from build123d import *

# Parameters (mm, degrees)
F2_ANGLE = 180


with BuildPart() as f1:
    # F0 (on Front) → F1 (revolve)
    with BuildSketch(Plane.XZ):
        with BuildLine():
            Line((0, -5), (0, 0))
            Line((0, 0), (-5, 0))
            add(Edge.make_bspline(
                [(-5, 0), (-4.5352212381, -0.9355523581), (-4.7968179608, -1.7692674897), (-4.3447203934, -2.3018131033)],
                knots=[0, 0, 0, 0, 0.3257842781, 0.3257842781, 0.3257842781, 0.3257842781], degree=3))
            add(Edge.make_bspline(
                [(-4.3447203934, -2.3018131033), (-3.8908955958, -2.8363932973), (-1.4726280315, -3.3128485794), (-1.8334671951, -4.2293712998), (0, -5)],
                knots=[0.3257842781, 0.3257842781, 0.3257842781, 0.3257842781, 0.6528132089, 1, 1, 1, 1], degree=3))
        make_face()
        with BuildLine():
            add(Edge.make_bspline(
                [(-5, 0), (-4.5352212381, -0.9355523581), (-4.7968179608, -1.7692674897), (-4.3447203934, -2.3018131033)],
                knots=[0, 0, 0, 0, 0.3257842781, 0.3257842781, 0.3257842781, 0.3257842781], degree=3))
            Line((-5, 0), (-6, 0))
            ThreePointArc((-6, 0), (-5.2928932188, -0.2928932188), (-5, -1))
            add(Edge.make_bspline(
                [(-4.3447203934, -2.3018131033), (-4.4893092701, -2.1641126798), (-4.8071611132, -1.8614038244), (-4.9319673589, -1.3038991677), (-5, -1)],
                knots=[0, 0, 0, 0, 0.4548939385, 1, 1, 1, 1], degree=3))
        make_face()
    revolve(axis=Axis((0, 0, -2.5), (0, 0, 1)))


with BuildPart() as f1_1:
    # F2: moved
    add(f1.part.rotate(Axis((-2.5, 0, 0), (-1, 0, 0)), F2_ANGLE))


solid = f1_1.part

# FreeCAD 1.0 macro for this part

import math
import FreeCAD as App
import Part
import Sketcher

V = App.Vector

doc = App.newDocument("Part")
params = doc.addObject("Spreadsheet::Sheet", "Params")
for row, (alias, value) in enumerate([
    ("sketch1_radius", "1 mm"),
    ("revolution_angle", "360 deg"),
], start=1):
    params.set(f"A{row}", alias)
    params.set(f"B{row}", "=" + value)
    params.setAlias(f"B{row}", alias)

body = doc.addObject("PartDesign::Body", "Body")

sketch1 = body.newObject("Sketcher::SketchObject", "Sketch")
sketch1.AttachmentSupport = (doc.getObject("XZ_Plane"), [""])
sketch1.MapMode = "FlatFace"
sketch1.addGeometry(Part.LineSegment(V(0, -5, 0), V(0, 0, 0)), False)
sketch1.addGeometry(Part.LineSegment(V(0, 0, 0), V(-6, 0, 0)), False)
sketch1.addGeometry(Part.ArcOfCircle(Part.Circle(V(-6, -1, 0), V(0, 0, 1), 1), math.radians(0), math.radians(90)), False)
sketch1.addGeometry(Part.BSplineCurve([V(-4.34472, -2.301813, 0), V(-4.489309, -2.164113, 0), V(-4.807161, -1.861404, 0), V(-4.931967, -1.303899, 0), V(-5, -1, 0)], [4, 1, 4], [0, 0.454893938, 1], False, 3, [1, 1, 1, 1, 1], False), False)
sketch1.addGeometry(Part.BSplineCurve([V(-4.34472, -2.301813, 0), V(-3.890896, -2.836393, 0), V(-1.472628, -3.312849, 0), V(-1.833467, -4.229371, 0), V(0, -5, 0)], [4, 1, 4], [0.325784278, 0.652813209, 1], False, 3, [1, 1, 1, 1, 1], False), False)
sketch1.addConstraint(Sketcher.Constraint("Block", 3))
sketch1.addConstraint(Sketcher.Constraint("Block", 4))
sketch1.addConstraint(Sketcher.Constraint("Coincident", 0, 2, 1, 1))
sketch1.addConstraint(Sketcher.Constraint("Tangent", 1, 2, 2, 2))
sketch1.addConstraint(Sketcher.Constraint("Coincident", 2, 1, 3, 2))
sketch1.addConstraint(Sketcher.Constraint("Coincident", 4, 2, 0, 1))
sketch1.addConstraint(Sketcher.Constraint("Vertical", 0))
sketch1.addConstraint(Sketcher.Constraint("Horizontal", 1))
sketch1.addConstraint(Sketcher.Constraint("PointOnObject", 1, 2, -1))
sketch1.addConstraint(Sketcher.Constraint("Radius", 2, 1.0))
sketch1.setExpression("Constraints[9]", "Params.sketch1_radius")
revolution = body.newObject("PartDesign::Revolution", "Revolution")
revolution.Profile = sketch1
revolution.ReferenceAxis = (sketch1, ["V_Axis"])
revolution.setExpression("Angle", "Params.revolution_angle")
body2 = doc.addObject("PartDesign::Body", "Body001")
doc.recompute()

body.Placement = App.Placement(V(0, 0, 0), App.Rotation(V(-1, 0, 0), 180))
boolean = body2.newObject("PartDesign::Boolean", "Boolean")
boolean.Type = "Fuse"
boolean.addObjects([body])

doc.recompute()
